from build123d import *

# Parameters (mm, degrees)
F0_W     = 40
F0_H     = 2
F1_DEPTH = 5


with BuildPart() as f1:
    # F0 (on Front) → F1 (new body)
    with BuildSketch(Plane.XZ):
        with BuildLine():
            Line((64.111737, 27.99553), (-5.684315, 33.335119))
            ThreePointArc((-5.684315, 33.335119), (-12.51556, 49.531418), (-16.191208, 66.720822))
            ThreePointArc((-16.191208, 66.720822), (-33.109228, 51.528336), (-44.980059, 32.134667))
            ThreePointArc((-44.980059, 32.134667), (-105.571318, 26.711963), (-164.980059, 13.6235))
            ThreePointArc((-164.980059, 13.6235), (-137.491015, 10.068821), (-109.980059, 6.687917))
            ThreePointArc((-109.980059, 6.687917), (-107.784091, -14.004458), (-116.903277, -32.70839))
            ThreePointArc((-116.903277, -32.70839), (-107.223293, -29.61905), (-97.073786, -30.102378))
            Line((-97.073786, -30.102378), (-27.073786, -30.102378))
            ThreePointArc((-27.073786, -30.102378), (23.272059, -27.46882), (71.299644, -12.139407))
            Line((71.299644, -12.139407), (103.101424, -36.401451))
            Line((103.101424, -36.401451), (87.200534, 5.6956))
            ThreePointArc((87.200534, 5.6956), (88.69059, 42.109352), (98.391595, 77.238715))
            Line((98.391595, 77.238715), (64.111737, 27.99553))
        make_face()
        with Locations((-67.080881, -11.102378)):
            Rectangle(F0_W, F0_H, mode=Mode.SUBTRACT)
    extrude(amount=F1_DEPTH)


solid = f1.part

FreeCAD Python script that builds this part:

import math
import FreeCAD as App
import Part
import Sketcher
from FreeCAD import Vector


def add_polygon(sketch, points):
    """Adds a closed chain of lines whose ends are joined by coincident constraints."""
    first, n = sketch.GeometryCount, len(points)
    for a, b in zip(points, points[1:] + points[:1]):
        sketch.addGeometry(Part.LineSegment(App.Vector(*a, 0), App.Vector(*b, 0)), False)
    for i in range(n):
        sketch.addConstraint(Sketcher.Constraint("Coincident", first + i, 2, first + (i + 1) % n, 1))

doc = App.newDocument("Part")
params = doc.addObject("Spreadsheet::Sheet", "Params")
for row, (alias, value) in enumerate([
    ("sketch1_width", "70 mm"),
    ("sketch1_width2", "40 mm"),
    ("sketch1_height", "2 mm"),
    ("sketch1_length", "70.000001 mm"),
    ("sketch1_length2", "40 mm"),
    ("pad1_length", "5 mm"),
], start=1):
    params.set(f"A{row}", alias)
    params.set(f"B{row}", "=" + value)
    params.setAlias(f"B{row}", alias)

body = doc.addObject("PartDesign::Body", "Body")

# Sketch on XZ plane
sketch1 = body.newObject("Sketcher::SketchObject", "Sketch")
sketch1.AttachmentSupport = (doc.getObject("XZ_Plane"), [""])
sketch1.MapMode = "FlatFace"
sketch1.addGeometry(Part.LineSegment(Vector(64.1, 28, 0), Vector(-5.7, 33.3, 0)), False)  # 0
sketch1.addGeometry(Part.ArcOfCircle(Part.Circle(Vector(76.6, 77.6, 0), Vector(0, 0, 1), 93.4), math.radians(-173), math.radians(-152)), False)  # 1
sketch1.addGeometry(Part.ArcOfCircle(Part.Circle(Vector(27.4, 1.2, 0), Vector(0, 0, 1), 78.7), math.radians(124), math.radians(157)), False)  # 2
sketch1.addGeometry(Part.ArcOfCircle(Part.Circle(Vector(-32.8, -444.8, 0), Vector(0, 0, 1), 477.1), math.radians(91.46), math.radians(106.08)), False)  # 3
sketch1.addGeometry(Part.ArcOfCircle(Part.Circle(Vector(411.3, 4362, 0), Vector(0, 0, 1), 4386.4), math.radians(-97.55), math.radians(-96.83)), False)  # 4
sketch1.addGeometry(Part.ArcOfCircle(Part.Circle(Vector(-144.9, -7.5, 0), Vector(0, 0, 1), 37.7), math.radians(-42), math.radians(22)), False)  # 5
sketch1.addGeometry(Part.ArcOfCircle(Part.Circle(Vector(-103.5, -58, 0), Vector(0, 0, 1), 28.7), math.radians(77), math.radians(118)), False)  # 6
sketch1.addGeometry(Part.LineSegment(Vector(-97.1, -30.1, 0), Vector(-27.1, -30.1, 0)), False)  # 7
sketch1.addGeometry(Part.ArcOfCircle(Part.Circle(Vector(-12.1, 166.3, 0), Vector(0, 0, 1), 196.9), math.radians(-94), math.radians(-65)), False)  # 8
sketch1.addGeometry(Part.LineSegment(Vector(71.3, -12.1, 0), Vector(103.1, -36.4, 0)), False)  # 9
sketch1.addGeometry(Part.LineSegment(Vector(103.1, -36.4, 0), Vector(87.2, 5.7, 0)), False)  # 10
sketch1.addGeometry(Part.ArcOfCircle(Part.Circle(Vector(246.6, 17.4, 0), Vector(0, 0, 1), 159.8), math.radians(158), math.radians(184)), False)  # 11
sketch1.addGeometry(Part.LineSegment(Vector(98.4, 77.2, 0), Vector(64.1, 28, 0)), False)  # 12
add_polygon(sketch1, [(-47.1, -12.1), (-87.1, -12.1), (-87.1, -10.1), (-47.1, -10.1)])  # lines 13-16
sketch1.addConstraint(Sketcher.Constraint("Coincident", 0, 2, 1, 2))
sketch1.addConstraint(Sketcher.Constraint("Coincident", 1, 1, 2, 1))
sketch1.addConstraint(Sketcher.Constraint("Coincident", 2, 2, 3, 1))
sketch1.addConstraint(Sketcher.Constraint("Coincident", 3, 2, 4, 1))
sketch1.addConstraint(Sketcher.Constraint("Coincident", 4, 2, 5, 2))
sketch1.addConstraint(Sketcher.Constraint("Coincident", 5, 1, 6, 2))
sketch1.addConstraint(Sketcher.Constraint("Coincident", 6, 1, 7, 1))
sketch1.addConstraint(Sketcher.Constraint("Coincident", 7, 2, 8, 1))
sketch1.addConstraint(Sketcher.Constraint("Coincident", 8, 2, 9, 1))
sketch1.addConstraint(Sketcher.Constraint("Coincident", 9, 2, 10, 1))
sketch1.addConstraint(Sketcher.Constraint("Coincident", 10, 2, 11, 2))
sketch1.addConstraint(Sketcher.Constraint("Coincident", 11, 1, 12, 1))
sketch1.addConstraint(Sketcher.Constraint("Coincident", 12, 2, 0, 1))
sketch1.addConstraint(Sketcher.Constraint("Horizontal", 7))
sketch1.addConstraint(Sketcher.Constraint("Horizontal", 13))
sketch1.addConstraint(Sketcher.Constraint("Vertical", 14))
sketch1.addConstraint(Sketcher.Constraint("Horizontal", 15))
sketch1.addConstraint(Sketcher.Constraint("Vertical", 16))
sketch1.addConstraint(Sketcher.Constraint("DistanceX", 7, 1, 7, 2, 70.0))
sketch1.addConstraint(Sketcher.Constraint("DistanceX", 13, 2, 13, 1, 40.0))
sketch1.addConstraint(Sketcher.Constraint("DistanceY", 14, 1, 14, 2, 2.0))
sketch1.addConstraint(Sketcher.Constraint("Distance", 0, 70.000001))
sketch1.addConstraint(Sketcher.Constraint("Distance", 9, 40.0))
sketch1.addConstraint(Sketcher.Constraint("Distance", 10, 45.0))
sketch1.addConstraint(Sketcher.Constraint("Distance", 12, 59.999999))
sketch1.addConstraint(Sketcher.Constraint("Radius", 2, 78.733002))
sketch1.addConstraint(Sketcher.Constraint("Radius", 11, 159.813999))
sketch1.addConstraint(Sketcher.Constraint("DistanceX", 3, 2, 2, 2, 120.0))
sketch1.addConstraint(Sketcher.Constraint("DistanceY", 6, 1, 13, 2, 18.0))
sketch1.addConstraint(Sketcher.Constraint("DistanceY", -1, 1, 1, 3, 77.57))
sketch1.addConstraint(Sketcher.Constraint("Radius", 5, 37.689431))
sketch1.addConstraint(Sketcher.Constraint("Radius", 1, 93.400623))
sketch1.addConstraint(Sketcher.Constraint("Radius", 3, 477.114635))
sketch1.addConstraint(Sketcher.Constraint("Radius", 4, 4386.404174))
sketch1.addConstraint(Sketcher.Constraint("Radius", 6, 28.652505))
sketch1.addConstraint(Sketcher.Constraint("Radius", 8, 196.938155))
sketch1.addConstraint(Sketcher.Constraint("DistanceY", 6, 3, 2, 3, 59.186001))
sketch1.addConstraint(Sketcher.Constraint("DistanceX", 5, 3, -1, 1, 144.904701))
sketch1.addConstraint(Sketcher.Constraint("DistanceY", -1, 1, 3, 2, 13.6235))
sketch1.addConstraint(Sketcher.Constraint("DistanceY", -1, 1, 10, 2, 5.6956))
sketch1.addConstraint(Sketcher.Constraint("DistanceY", 5, 3, 11, 3, 24.892099))
sketch1.addConstraint(Sketcher.Constraint("DistanceY", 2, 3, 1, 1, 65.5621))
sketch1.addConstraint(Sketcher.Constraint("DistanceY", 6, 3, 6, 1, 27.924901))
sketch1.addConstraint(Sketcher.Constraint("DistanceX", -1, 1, 1, 3, 76.577169))
sketch1.addConstraint(Sketcher.Constraint("DistanceX", 3, 3, -1, 1, 32.832111))
sketch1.addConstraint(Sketcher.Constraint("DistanceY", -1, 1, 4, 3, 4362.008088))
sketch1.addConstraint(Sketcher.Constraint("DistanceY", 6, 3, -1, 1, 58.027279))
sketch1.addConstraint(Sketcher.Constraint("DistanceX", -1, 1, 11, 3, 246.584551))
sketch1.addConstraint(Sketcher.Constraint("DistanceY", -1, 1, 0, 2, 33.335119))
sketch1.addConstraint(Sketcher.Constraint("DistanceY", 5, 1, -1, 1, 32.70839))
sketch1.addConstraint(Sketcher.Constraint("DistanceY", 9, 2, -1, 1, 36.401451))
sketch1.addConstraint(Sketcher.Constraint("DistanceY", -1, 1, 12, 2, 27.99553))
sketch1.addConstraint(Sketcher.Constraint("DistanceX", 13, 2, -1, 1, 87.080881))
sketch1.addConstraint(Sketcher.Constraint("DistanceY", 3, 3, 5, 3, 437.344138))
sketch1.addConstraint(Sketcher.Constraint("DistanceX", 8, 3, 2, 3, 39.507362))
sketch1.setExpression("Constraints[22]", "Params.sketch1_width")
sketch1.setExpression("Constraints[23]", "Params.sketch1_width2")
sketch1.setExpression("Constraints[24]", "Params.sketch1_height")
sketch1.setExpression("Constraints[25]", "Params.sketch1_length")
sketch1.setExpression("Constraints[26]", "Params.sketch1_length2")
pad1 = body.newObject("PartDesign::Pad", "Pad")
pad1.Profile = sketch1
pad1.setExpression("Length", "Params.pad1_length")

doc.recompute()
